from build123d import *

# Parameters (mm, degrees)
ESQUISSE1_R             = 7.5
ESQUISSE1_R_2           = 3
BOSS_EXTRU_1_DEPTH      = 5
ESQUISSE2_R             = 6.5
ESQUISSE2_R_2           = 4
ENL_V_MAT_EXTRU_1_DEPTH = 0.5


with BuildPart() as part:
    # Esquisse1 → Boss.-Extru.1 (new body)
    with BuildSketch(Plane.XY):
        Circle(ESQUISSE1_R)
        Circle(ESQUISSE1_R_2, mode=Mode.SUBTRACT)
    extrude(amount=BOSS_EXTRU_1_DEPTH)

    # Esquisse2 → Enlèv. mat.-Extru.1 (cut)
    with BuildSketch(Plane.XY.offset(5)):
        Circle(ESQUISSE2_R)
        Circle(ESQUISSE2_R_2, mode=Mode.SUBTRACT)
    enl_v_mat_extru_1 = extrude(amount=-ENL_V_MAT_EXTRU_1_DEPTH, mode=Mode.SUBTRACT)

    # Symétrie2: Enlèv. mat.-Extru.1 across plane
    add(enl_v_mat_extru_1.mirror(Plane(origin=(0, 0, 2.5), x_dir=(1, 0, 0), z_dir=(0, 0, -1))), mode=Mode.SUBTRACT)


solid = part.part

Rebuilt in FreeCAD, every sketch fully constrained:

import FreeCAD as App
import Part
import Sketcher

V = App.Vector
Q = App.Units.Quantity

doc = App.newDocument("Part")
body = doc.addObject("PartDesign::Body", "Body")

sketch1 = body.newObject("Sketcher::SketchObject", "Sketch")
sketch1.AttachmentSupport = (doc.getObject("XY_Plane"), [""])
sketch1.MapMode = "FlatFace"
sketch1.addGeometry(Part.Circle(V(0, 0, 0), V(0, 0, 1), 7.5), False)
sketch1.addGeometry(Part.Circle(V(0, 0, 0), V(0, 0, 1), 3), False)
sketch1.addConstraint(Sketcher.Constraint("Coincident", 0, 3, -1, 1))
sketch1.addConstraint(Sketcher.Constraint("Coincident", 1, 3, -1, 1))
sketch1.addConstraint(Sketcher.Constraint("Diameter", 0, Q("15 mm")))
sketch1.addConstraint(Sketcher.Constraint("Diameter", 1, Q("6 mm")))
pad1 = body.newObject("PartDesign::Pad", "Pad")
pad1.Profile = sketch1
pad1.Length = 5

sketch2 = body.newObject("Sketcher::SketchObject", "Sketch001")
sketch2.AttachmentSupport = (doc.getObject("XY_Plane"), [""])
sketch2.MapMode = "FlatFace"
sketch2.AttachmentOffset = App.Placement(V(0, 0, 5), App.Rotation())
sketch2.addGeometry(Part.Circle(V(0, 0, 0), V(0, 0, 1), 6.5), False)
sketch2.addGeometry(Part.Circle(V(0, 0, 0), V(0, 0, 1), 4), False)
sketch2.addConstraint(Sketcher.Constraint("Coincident", 0, 3, -1, 1))
sketch2.addConstraint(Sketcher.Constraint("Coincident", 1, 3, -1, 1))
sketch2.addConstraint(Sketcher.Constraint("Diameter", 0, Q("13 mm")))
sketch2.addConstraint(Sketcher.Constraint("Diameter", 1, Q("8 mm")))
pocket1 = body.newObject("PartDesign::Pocket", "Pocket")
pocket1.Profile = sketch2
pocket1.Length = 0.5
doc.recompute()

datumplane = body.newObject("PartDesign::Plane", "DatumPlane")
datumplane.AttachmentSupport = (doc.getObject("XY_Plane"), [""])
datumplane.MapMode = "FlatFace"
datumplane.AttachmentOffset = App.Placement(V(0, 0, 2.5), App.Rotation())
mirrored = body.newObject("PartDesign::Mirrored", "Mirrored")
mirrored.Originals = [pocket1]
mirrored.MirrorPlane = (datumplane, [""])
body.Tip = mirrored

doc.recompute()
